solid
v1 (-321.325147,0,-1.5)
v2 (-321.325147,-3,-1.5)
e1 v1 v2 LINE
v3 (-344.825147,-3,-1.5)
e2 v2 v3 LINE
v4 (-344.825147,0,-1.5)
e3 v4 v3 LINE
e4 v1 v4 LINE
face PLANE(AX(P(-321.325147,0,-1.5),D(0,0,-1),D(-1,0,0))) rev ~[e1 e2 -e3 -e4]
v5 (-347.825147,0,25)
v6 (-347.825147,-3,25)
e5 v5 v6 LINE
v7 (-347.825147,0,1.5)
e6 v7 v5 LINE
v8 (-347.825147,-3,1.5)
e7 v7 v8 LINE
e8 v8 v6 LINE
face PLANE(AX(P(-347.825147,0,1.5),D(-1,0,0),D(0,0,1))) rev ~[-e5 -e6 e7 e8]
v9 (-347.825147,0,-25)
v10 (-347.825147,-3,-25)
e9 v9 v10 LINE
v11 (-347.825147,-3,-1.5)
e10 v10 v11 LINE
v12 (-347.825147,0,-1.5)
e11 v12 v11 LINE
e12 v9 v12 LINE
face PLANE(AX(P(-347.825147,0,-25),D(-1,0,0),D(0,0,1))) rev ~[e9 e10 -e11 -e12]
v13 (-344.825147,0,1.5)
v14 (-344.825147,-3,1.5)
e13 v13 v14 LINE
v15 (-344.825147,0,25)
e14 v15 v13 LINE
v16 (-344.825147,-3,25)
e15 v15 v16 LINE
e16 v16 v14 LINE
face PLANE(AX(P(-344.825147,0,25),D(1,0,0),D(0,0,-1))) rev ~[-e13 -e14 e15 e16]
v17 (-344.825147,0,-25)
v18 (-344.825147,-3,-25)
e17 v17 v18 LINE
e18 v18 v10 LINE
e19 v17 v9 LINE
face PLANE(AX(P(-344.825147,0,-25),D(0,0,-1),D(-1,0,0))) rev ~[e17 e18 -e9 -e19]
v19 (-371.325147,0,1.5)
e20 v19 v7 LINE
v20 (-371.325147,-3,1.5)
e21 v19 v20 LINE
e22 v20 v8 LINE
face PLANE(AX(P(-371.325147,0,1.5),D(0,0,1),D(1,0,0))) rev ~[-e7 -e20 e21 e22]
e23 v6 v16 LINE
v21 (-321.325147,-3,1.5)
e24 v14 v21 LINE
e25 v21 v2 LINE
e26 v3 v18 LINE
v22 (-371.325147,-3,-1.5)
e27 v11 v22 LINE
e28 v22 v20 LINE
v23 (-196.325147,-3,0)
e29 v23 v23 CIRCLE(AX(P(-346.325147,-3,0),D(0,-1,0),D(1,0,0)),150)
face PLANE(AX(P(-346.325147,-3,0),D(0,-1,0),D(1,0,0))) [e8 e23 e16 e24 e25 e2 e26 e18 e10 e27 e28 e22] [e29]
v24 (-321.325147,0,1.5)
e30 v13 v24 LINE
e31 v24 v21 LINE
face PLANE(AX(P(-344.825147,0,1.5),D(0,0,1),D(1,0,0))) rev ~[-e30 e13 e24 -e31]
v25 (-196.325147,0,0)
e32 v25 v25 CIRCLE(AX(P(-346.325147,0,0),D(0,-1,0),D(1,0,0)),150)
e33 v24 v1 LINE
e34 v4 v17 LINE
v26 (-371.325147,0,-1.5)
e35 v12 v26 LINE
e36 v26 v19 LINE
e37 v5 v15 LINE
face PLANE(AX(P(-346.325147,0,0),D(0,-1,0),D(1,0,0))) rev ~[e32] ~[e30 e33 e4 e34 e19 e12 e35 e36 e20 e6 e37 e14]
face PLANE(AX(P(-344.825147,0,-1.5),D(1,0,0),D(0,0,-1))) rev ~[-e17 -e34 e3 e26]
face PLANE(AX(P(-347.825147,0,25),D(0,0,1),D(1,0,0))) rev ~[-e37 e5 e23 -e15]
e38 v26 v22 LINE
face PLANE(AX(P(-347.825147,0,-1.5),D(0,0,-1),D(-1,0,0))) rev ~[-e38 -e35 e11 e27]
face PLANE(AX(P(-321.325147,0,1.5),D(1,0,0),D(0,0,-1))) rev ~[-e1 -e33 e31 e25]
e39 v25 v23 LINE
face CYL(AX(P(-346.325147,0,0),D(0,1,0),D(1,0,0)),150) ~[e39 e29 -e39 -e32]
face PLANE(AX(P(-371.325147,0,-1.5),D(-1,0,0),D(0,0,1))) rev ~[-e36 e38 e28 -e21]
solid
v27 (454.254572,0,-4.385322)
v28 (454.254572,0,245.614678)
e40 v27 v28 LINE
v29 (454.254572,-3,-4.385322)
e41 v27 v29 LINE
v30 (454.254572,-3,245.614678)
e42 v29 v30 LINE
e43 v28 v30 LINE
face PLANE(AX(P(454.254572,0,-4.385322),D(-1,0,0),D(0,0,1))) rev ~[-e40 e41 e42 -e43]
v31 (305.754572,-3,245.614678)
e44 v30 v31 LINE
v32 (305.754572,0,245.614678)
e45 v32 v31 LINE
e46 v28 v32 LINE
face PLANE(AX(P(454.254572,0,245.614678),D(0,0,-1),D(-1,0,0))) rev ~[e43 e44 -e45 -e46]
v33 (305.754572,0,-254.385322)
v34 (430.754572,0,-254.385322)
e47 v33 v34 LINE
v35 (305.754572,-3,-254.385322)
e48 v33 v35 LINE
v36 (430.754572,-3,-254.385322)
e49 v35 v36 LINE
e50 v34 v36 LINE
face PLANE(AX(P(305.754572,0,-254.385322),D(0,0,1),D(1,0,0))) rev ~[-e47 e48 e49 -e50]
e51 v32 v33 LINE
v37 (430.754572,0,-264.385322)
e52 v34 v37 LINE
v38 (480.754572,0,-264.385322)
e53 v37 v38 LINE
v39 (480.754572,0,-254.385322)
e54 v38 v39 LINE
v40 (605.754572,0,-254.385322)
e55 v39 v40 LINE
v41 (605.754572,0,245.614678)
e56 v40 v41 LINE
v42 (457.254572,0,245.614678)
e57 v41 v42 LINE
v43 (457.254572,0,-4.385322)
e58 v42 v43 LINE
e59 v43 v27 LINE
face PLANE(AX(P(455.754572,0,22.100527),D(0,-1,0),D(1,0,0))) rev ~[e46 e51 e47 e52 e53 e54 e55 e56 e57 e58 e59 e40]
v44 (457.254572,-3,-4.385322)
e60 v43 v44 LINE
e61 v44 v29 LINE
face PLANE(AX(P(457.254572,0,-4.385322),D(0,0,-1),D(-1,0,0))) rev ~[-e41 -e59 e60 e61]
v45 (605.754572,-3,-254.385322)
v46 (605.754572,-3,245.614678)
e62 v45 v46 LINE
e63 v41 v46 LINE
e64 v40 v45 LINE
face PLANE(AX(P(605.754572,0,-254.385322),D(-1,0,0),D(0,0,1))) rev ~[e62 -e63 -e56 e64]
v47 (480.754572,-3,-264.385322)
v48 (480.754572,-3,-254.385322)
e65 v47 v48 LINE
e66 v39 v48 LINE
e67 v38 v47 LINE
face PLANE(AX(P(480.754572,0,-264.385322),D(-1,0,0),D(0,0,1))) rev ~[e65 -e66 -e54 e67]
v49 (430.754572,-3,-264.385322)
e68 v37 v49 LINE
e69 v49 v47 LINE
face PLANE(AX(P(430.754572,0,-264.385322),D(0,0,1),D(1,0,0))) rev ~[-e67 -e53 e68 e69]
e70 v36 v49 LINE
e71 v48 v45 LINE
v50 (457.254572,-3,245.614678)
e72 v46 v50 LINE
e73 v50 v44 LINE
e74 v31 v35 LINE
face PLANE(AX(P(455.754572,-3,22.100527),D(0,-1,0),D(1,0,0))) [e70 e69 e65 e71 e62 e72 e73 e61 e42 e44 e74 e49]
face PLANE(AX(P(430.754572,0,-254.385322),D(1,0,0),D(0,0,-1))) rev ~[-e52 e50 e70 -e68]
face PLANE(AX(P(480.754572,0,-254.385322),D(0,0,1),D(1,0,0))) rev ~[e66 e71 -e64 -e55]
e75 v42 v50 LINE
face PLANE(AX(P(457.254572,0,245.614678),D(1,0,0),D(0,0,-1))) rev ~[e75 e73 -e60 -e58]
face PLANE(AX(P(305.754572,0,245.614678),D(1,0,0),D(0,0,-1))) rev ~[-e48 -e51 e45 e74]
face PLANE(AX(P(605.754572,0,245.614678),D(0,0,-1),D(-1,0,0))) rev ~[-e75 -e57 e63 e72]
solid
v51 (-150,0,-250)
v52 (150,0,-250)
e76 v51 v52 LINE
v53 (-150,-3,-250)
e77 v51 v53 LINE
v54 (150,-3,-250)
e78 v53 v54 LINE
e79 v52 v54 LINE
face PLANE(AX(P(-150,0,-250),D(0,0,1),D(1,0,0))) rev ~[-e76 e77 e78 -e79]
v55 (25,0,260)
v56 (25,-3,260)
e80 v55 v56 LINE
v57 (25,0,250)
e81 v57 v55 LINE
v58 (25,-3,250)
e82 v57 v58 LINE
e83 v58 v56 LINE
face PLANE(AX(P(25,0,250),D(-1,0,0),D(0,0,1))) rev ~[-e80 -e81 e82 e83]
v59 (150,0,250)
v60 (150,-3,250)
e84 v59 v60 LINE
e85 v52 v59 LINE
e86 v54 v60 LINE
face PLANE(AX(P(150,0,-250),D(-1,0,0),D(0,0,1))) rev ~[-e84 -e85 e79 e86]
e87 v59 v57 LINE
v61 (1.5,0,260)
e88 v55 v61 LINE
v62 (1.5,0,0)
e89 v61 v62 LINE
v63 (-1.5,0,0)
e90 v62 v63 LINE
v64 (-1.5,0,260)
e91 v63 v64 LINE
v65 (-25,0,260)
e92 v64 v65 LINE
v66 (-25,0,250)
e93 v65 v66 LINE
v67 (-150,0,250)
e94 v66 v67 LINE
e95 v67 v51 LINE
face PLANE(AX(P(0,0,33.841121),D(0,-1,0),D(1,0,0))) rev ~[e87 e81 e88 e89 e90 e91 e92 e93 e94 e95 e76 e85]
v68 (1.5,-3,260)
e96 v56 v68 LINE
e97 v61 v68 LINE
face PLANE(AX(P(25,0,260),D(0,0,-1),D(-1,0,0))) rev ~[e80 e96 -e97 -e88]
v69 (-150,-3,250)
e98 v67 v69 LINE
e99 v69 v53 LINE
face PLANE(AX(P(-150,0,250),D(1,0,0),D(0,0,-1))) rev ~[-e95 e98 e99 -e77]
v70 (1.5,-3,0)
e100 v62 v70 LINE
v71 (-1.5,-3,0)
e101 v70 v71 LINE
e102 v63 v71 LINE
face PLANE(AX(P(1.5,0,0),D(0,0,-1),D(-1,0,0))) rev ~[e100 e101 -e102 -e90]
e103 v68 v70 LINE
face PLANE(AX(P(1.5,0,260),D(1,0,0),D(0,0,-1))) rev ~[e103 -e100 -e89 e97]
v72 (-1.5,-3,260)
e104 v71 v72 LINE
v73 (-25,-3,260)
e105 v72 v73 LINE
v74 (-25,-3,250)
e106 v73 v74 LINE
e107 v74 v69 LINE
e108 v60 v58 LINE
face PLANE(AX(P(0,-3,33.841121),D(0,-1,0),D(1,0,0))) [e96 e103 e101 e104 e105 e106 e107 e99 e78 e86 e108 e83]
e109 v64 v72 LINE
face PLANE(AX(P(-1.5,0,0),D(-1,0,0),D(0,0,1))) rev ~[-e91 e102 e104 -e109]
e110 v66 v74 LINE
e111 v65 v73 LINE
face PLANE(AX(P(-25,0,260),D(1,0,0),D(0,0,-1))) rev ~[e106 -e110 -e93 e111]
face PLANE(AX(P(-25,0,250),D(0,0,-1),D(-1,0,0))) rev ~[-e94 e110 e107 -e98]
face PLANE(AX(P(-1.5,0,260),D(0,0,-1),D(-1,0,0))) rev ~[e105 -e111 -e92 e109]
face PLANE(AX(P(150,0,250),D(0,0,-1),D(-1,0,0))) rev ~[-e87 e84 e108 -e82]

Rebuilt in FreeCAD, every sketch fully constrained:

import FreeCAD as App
import Part
import Sketcher

V = App.Vector
Q = App.Units.Quantity

doc = App.newDocument("Part")
body = doc.addObject("PartDesign::Body", "Body")
body.AllowCompound = True

sketch1 = body.newObject("Sketcher::SketchObject", "Sketch")
sketch1.AttachmentSupport = (doc.getObject("XZ_Plane"), [""])
sketch1.MapMode = "FlatFace"
sketch1.addGeometry([
    Part.LineSegment(V(-150, 250, 0), V(-150, -250, 0)),
    Part.LineSegment(V(-150, -250, 0), V(150, -250, 0)),
    Part.LineSegment(V(150, -250, 0), V(150, 250, 0)),
    Part.LineSegment(V(150, 250, 0), V(25, 250, 0)),
    Part.LineSegment(V(25, 250, 0), V(25, 260, 0)),
    Part.LineSegment(V(25, 260, 0), V(1.5, 260, 0)),
    Part.LineSegment(V(1.5, 260, 0), V(1.5, 0, 0)),
    Part.LineSegment(V(1.5, 0, 0), V(-1.5, 0, 0)),
    Part.LineSegment(V(-1.5, 0, 0), V(-1.5, 260, 0)),
    Part.LineSegment(V(-1.5, 260, 0), V(-25, 260, 0)),
    Part.LineSegment(V(-25, 260, 0), V(-25, 250, 0)),
    Part.LineSegment(V(-25, 250, 0), V(-150, 250, 0)),
    Part.LineSegment(V(305.8, 245.6, 0), V(305.8, -254.4, 0)),
    Part.LineSegment(V(305.8, -254.4, 0), V(430.8, -254.4, 0)),
    Part.LineSegment(V(430.8, -254.4, 0), V(430.8, -264.4, 0)),
    Part.LineSegment(V(430.8, -264.4, 0), V(480.8, -264.4, 0)),
    Part.LineSegment(V(480.8, -264.4, 0), V(480.8, -254.4, 0)),
    Part.LineSegment(V(480.8, -254.4, 0), V(605.8, -254.4, 0)),
    Part.LineSegment(V(605.8, -254.4, 0), V(605.8, 245.6, 0)),
    Part.LineSegment(V(605.8, 245.6, 0), V(457.3, 245.6, 0)),
    Part.LineSegment(V(457.3, 245.6, 0), V(457.3, -4.4, 0)),
    Part.LineSegment(V(457.3, -4.4, 0), V(454.3, -4.4, 0)),
    Part.LineSegment(V(454.3, -4.4, 0), V(454.3, 245.6, 0)),
    Part.LineSegment(V(454.3, 245.6, 0), V(305.8, 245.6, 0)),
], False)
sketch1.addConstraint([
    Sketcher.Constraint("Coincident", 0, 2, 1, 1),
    Sketcher.Constraint("Coincident", 1, 2, 2, 1),
    Sketcher.Constraint("Coincident", 2, 2, 3, 1),
    Sketcher.Constraint("Coincident", 3, 2, 4, 1),
    Sketcher.Constraint("Coincident", 4, 2, 5, 1),
    Sketcher.Constraint("Coincident", 5, 2, 6, 1),
    Sketcher.Constraint("Coincident", 6, 2, 7, 1),
    Sketcher.Constraint("Coincident", 7, 2, 8, 1),
    Sketcher.Constraint("Coincident", 8, 2, 9, 1),
    Sketcher.Constraint("Coincident", 9, 2, 10, 1),
    Sketcher.Constraint("Coincident", 10, 2, 11, 1),
    Sketcher.Constraint("Coincident", 11, 2, 0, 1),
    Sketcher.Constraint("Coincident", 12, 2, 13, 1),
    Sketcher.Constraint("Coincident", 13, 2, 14, 1),
    Sketcher.Constraint("Coincident", 14, 2, 15, 1),
    Sketcher.Constraint("Coincident", 15, 2, 16, 1),
    Sketcher.Constraint("Coincident", 16, 2, 17, 1),
    Sketcher.Constraint("Coincident", 17, 2, 18, 1),
    Sketcher.Constraint("Coincident", 18, 2, 19, 1),
    Sketcher.Constraint("Coincident", 19, 2, 20, 1),
    Sketcher.Constraint("Coincident", 20, 2, 21, 1),
    Sketcher.Constraint("Coincident", 21, 2, 22, 1),
    Sketcher.Constraint("Coincident", 22, 2, 23, 1),
    Sketcher.Constraint("Coincident", 23, 2, 12, 1),
    Sketcher.Constraint("Vertical", 0),
    Sketcher.Constraint("Horizontal", 1),
    Sketcher.Constraint("Vertical", 2),
    Sketcher.Constraint("Horizontal", 3),
    Sketcher.Constraint("Vertical", 4),
    Sketcher.Constraint("Horizontal", 5),
    Sketcher.Constraint("Vertical", 6),
    Sketcher.Constraint("Horizontal", 7),
    Sketcher.Constraint("Vertical", 8),
    Sketcher.Constraint("Horizontal", 9),
    Sketcher.Constraint("Vertical", 10),
    Sketcher.Constraint("Horizontal", 11),
    Sketcher.Constraint("Vertical", 12),
    Sketcher.Constraint("Horizontal", 13),
    Sketcher.Constraint("Vertical", 14),
    Sketcher.Constraint("Horizontal", 15),
    Sketcher.Constraint("Vertical", 16),
    Sketcher.Constraint("Horizontal", 17),
    Sketcher.Constraint("Vertical", 18),
    Sketcher.Constraint("Horizontal", 19),
    Sketcher.Constraint("Vertical", 20),
    Sketcher.Constraint("Horizontal", 21),
    Sketcher.Constraint("Vertical", 22),
    Sketcher.Constraint("Horizontal", 23),
    Sketcher.Constraint("Symmetric", 0, 2, 2, 2, -1, 1),
    Sketcher.Constraint("Symmetric", 6, 2, 7, 2, -1, 1),
    Sketcher.Constraint("Symmetric", 4, 2, 9, 2, -2),
    Sketcher.Constraint("Horizontal", 3, 2, 10, 2),
    Sketcher.Constraint("Horizontal", 13, 2, 16, 2),
    Sketcher.Constraint("Horizontal", 19, 2, 22, 2),
    Sketcher.Constraint("Equal", 11, 13),
    Sketcher.Constraint("Equal", 13, 17),
    Sketcher.Constraint("Equal", 7, 21),
    Sketcher.Constraint("Equal", 19, 23),
    Sketcher.Constraint("Equal", 2, 12),
    Sketcher.Constraint("Equal", 10, 14),
    Sketcher.Constraint("DistanceX", 1, 1, 1, 2, Q("300 mm")),
    Sketcher.Constraint("DistanceX", 3, 2, 3, 1, Q("125 mm")),
    Sketcher.Constraint("DistanceX", 7, 2, 7, 1, Q("3 mm")),
    Sketcher.Constraint("DistanceX", 15, 1, 15, 2, Q("50 mm")),
    Sketcher.Constraint("DistanceY", 0, 2, 0, 1, Q("500 mm")),
    Sketcher.Constraint("DistanceY", 4, 1, 4, 2, Q("10 mm")),
    Sketcher.Constraint("DistanceY", 20, 2, 20, 1, Q("250 mm")),
    Sketcher.Constraint("DistanceX", -1, 1, 12, 2, Q("305.754572 mm")),
    Sketcher.Constraint("DistanceY", 12, 2, -1, 1, Q("254.385322 mm")),
])
pad1 = body.newObject("PartDesign::Pad", "Pad")
pad1.Profile = sketch1
pad1.Length = 3
body2 = doc.addObject("PartDesign::Body", "Body001")

sketch2 = body2.newObject("Sketcher::SketchObject", "Sketch001")
sketch2.AttachmentSupport = (doc.getObject("XZ_Plane001"), [""])
sketch2.MapMode = "FlatFace"
sketch2.addGeometry([
    Part.Circle(V(-346.3, 0, 0), V(0, 0, 1), 150),
    Part.LineSegment(V(-347.8, -25, 0), V(-347.8, -1.5, 0)),
    Part.LineSegment(V(-347.8, -1.5, 0), V(-371.3, -1.5, 0)),
    Part.LineSegment(V(-371.3, -1.5, 0), V(-371.3, 1.5, 0)),
    Part.LineSegment(V(-371.3, 1.5, 0), V(-347.8, 1.5, 0)),
    Part.LineSegment(V(-347.8, 1.5, 0), V(-347.8, 25, 0)),
    Part.LineSegment(V(-347.8, 25, 0), V(-344.8, 25, 0)),
    Part.LineSegment(V(-344.8, 25, 0), V(-344.8, 1.5, 0)),
    Part.LineSegment(V(-344.8, 1.5, 0), V(-321.3, 1.5, 0)),
    Part.LineSegment(V(-321.3, 1.5, 0), V(-321.3, -1.5, 0)),
    Part.LineSegment(V(-321.3, -1.5, 0), V(-344.8, -1.5, 0)),
    Part.LineSegment(V(-344.8, -1.5, 0), V(-344.8, -25, 0)),
    Part.LineSegment(V(-344.8, -25, 0), V(-347.8, -25, 0)),
], False)
sketch2.addConstraint([
    Sketcher.Constraint("Coincident", 1, 2, 2, 1),
    Sketcher.Constraint("Coincident", 2, 2, 3, 1),
    Sketcher.Constraint("Coincident", 3, 2, 4, 1),
    Sketcher.Constraint("Coincident", 4, 2, 5, 1),
    Sketcher.Constraint("Coincident", 5, 2, 6, 1),
    Sketcher.Constraint("Coincident", 6, 2, 7, 1),
    Sketcher.Constraint("Coincident", 7, 2, 8, 1),
    Sketcher.Constraint("Coincident", 8, 2, 9, 1),
    Sketcher.Constraint("Coincident", 9, 2, 10, 1),
    Sketcher.Constraint("Coincident", 10, 2, 11, 1),
    Sketcher.Constraint("Coincident", 11, 2, 12, 1),
    Sketcher.Constraint("Coincident", 12, 2, 1, 1),
    Sketcher.Constraint("Vertical", 1),
    Sketcher.Constraint("Horizontal", 2),
    Sketcher.Constraint("Vertical", 3),
    Sketcher.Constraint("Horizontal", 4),
    Sketcher.Constraint("Vertical", 5),
    Sketcher.Constraint("Horizontal", 6),
    Sketcher.Constraint("Vertical", 7),
    Sketcher.Constraint("Horizontal", 8),
    Sketcher.Constraint("Vertical", 9),
    Sketcher.Constraint("Horizontal", 10),
    Sketcher.Constraint("Vertical", 11),
    Sketcher.Constraint("Horizontal", 12),
    Sketcher.Constraint("Symmetric", 1, 2, 4, 2, -1),
    Sketcher.Constraint("Symmetric", 7, 2, 10, 2, -1),
    Sketcher.Constraint("PointOnObject", 0, 3, -1),
    Sketcher.Constraint("Horizontal", 4, 2, 7, 2),
    Sketcher.Constraint("Equal", 4, 8),
    Sketcher.Constraint("Equal", 10, 1),
    Sketcher.Constraint("Equal", 12, 3),
    Sketcher.Constraint("Equal", 1, 5),
    Sketcher.Constraint("Diameter", 0, Q("300 mm")),
    Sketcher.Constraint("DistanceX", 6, 1, 6, 2, Q("3 mm")),
    Sketcher.Constraint("DistanceX", 2, 2, 2, 1, Q("23.5 mm")),
    Sketcher.Constraint("DistanceX", 2, 2, 0, 3, Q("25 mm")),
    Sketcher.Constraint("DistanceX", 0, 3, -1, 1, Q("346.325147 mm")),
])
pad2 = body2.newObject("PartDesign::Pad", "Pad001")
pad2.Profile = sketch2
pad2.Length = 3

doc.recompute()
